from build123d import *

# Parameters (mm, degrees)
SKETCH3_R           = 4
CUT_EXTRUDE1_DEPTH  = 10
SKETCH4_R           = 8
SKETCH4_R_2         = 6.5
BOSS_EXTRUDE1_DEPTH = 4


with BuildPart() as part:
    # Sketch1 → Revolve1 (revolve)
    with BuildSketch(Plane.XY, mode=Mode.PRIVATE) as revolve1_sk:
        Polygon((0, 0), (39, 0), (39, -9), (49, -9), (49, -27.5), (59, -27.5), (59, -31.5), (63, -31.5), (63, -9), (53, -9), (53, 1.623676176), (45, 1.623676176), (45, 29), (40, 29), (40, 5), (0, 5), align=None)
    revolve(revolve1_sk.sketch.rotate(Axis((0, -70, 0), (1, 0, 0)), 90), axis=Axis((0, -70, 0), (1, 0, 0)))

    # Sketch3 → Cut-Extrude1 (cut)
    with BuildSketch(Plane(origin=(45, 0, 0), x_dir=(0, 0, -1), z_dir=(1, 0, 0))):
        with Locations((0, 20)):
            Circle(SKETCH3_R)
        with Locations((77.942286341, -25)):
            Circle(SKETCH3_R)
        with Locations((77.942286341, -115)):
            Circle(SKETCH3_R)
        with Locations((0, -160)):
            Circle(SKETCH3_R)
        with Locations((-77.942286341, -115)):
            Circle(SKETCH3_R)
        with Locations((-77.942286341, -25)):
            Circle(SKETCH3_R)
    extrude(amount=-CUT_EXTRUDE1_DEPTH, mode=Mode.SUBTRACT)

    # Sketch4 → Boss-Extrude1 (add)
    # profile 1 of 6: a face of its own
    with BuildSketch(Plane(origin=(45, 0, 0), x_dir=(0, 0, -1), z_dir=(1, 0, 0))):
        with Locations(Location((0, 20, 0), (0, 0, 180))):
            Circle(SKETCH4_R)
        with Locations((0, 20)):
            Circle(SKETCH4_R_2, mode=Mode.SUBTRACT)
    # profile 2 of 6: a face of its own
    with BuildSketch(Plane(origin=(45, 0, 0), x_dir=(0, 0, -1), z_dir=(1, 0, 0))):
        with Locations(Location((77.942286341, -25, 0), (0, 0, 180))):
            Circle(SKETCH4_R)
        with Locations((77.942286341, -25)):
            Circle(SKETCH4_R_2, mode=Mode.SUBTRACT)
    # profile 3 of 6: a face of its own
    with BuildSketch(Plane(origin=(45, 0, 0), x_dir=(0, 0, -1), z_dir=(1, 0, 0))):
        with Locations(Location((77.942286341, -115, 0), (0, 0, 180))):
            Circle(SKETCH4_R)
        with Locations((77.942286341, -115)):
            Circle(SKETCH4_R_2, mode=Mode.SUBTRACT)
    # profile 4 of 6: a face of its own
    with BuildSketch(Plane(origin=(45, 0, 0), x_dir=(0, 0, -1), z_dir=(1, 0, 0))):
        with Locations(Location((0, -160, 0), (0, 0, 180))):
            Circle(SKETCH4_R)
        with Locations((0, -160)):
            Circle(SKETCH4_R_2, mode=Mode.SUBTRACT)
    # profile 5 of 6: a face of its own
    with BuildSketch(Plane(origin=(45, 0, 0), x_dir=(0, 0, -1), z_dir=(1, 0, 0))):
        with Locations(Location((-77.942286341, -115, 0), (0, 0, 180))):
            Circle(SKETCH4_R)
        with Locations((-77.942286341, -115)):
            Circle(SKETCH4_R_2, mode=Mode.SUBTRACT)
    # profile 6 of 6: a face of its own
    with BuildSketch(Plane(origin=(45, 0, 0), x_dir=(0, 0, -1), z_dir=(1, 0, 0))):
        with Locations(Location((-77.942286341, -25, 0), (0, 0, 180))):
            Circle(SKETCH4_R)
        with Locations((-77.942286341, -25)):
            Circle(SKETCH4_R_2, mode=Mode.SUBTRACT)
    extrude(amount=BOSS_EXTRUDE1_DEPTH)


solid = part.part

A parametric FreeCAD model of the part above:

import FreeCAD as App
import Part
import Sketcher

V = App.Vector

doc = App.newDocument("Part")
params = doc.addObject("Spreadsheet::Sheet", "Params")
for row, (alias, value) in enumerate([
    ("sketch1_width", "39 mm"),
    ("sketch1_width2", "10 mm"),
    ("sketch1_width3", "4 mm"),
    ("sketch1_width4", "8 mm"),
    ("sketch1_width5", "5 mm"),
    ("revolution_angle", "360 deg"),
    ("sketch2_diameter", "8 mm"),
    ("pocket1_length", "10 mm"),
    ("sketch3_diameter", "16 mm"),
    ("sketch3_diameter2", "13 mm"),
    ("pad1_length", "4 mm"),
], start=1):
    params.set(f"A{row}", alias)
    params.set(f"B{row}", "=" + value)
    params.setAlias(f"B{row}", alias)

body = doc.addObject("PartDesign::Body", "Body")

sketch1 = doc.addObject("Sketcher::SketchObject", "Sketch")
body.addObject(sketch1)
sketch1.AttachmentSupport = (doc.XY_Plane, [""])
sketch1.MapMode = "FlatFace"
sketch1.addGeometry(Part.LineSegment(V(0, 0, 0), V(39, 0, 0)), False)
sketch1.addGeometry(Part.LineSegment(V(39, 0, 0), V(39, -9, 0)), False)
sketch1.addGeometry(Part.LineSegment(V(39, -9, 0), V(49, -9, 0)), False)
sketch1.addGeometry(Part.LineSegment(V(49, -9, 0), V(49, -27.5, 0)), False)
sketch1.addGeometry(Part.LineSegment(V(49, -27.5, 0), V(59, -27.5, 0)), False)
sketch1.addGeometry(Part.LineSegment(V(59, -27.5, 0), V(59, -31.5, 0)), False)
sketch1.addGeometry(Part.LineSegment(V(59, -31.5, 0), V(63, -31.5, 0)), False)
sketch1.addGeometry(Part.LineSegment(V(63, -31.5, 0), V(63, -9, 0)), False)
sketch1.addGeometry(Part.LineSegment(V(63, -9, 0), V(53, -9, 0)), False)
sketch1.addGeometry(Part.LineSegment(V(53, -9, 0), V(53, 1.623676, 0)), False)
sketch1.addGeometry(Part.LineSegment(V(53, 1.623676, 0), V(45, 1.623676, 0)), False)
sketch1.addGeometry(Part.LineSegment(V(45, 1.623676, 0), V(45, 29, 0)), False)
sketch1.addGeometry(Part.LineSegment(V(45, 29, 0), V(40, 29, 0)), False)
sketch1.addGeometry(Part.LineSegment(V(40, 29, 0), V(40, 5, 0)), False)
sketch1.addGeometry(Part.LineSegment(V(40, 5, 0), V(0, 5, 0)), False)
sketch1.addGeometry(Part.LineSegment(V(0, 5, 0), V(0, 0, 0)), False)
sketch1.addGeometry(Part.LineSegment(V(0, -70, 0), V(63, -70, 0)), True)
sketch1.addConstraint(Sketcher.Constraint("Coincident", 0, 2, 1, 1))
sketch1.addConstraint(Sketcher.Constraint("Coincident", 1, 2, 2, 1))
sketch1.addConstraint(Sketcher.Constraint("Coincident", 2, 2, 3, 1))
sketch1.addConstraint(Sketcher.Constraint("Coincident", 3, 2, 4, 1))
sketch1.addConstraint(Sketcher.Constraint("Coincident", 4, 2, 5, 1))
sketch1.addConstraint(Sketcher.Constraint("Coincident", 5, 2, 6, 1))
sketch1.addConstraint(Sketcher.Constraint("Coincident", 6, 2, 7, 1))
sketch1.addConstraint(Sketcher.Constraint("Coincident", 7, 2, 8, 1))
sketch1.addConstraint(Sketcher.Constraint("Coincident", 8, 2, 9, 1))
sketch1.addConstraint(Sketcher.Constraint("Coincident", 9, 2, 10, 1))
sketch1.addConstraint(Sketcher.Constraint("Coincident", 10, 2, 11, 1))
sketch1.addConstraint(Sketcher.Constraint("Coincident", 11, 2, 12, 1))
sketch1.addConstraint(Sketcher.Constraint("Coincident", 12, 2, 13, 1))
sketch1.addConstraint(Sketcher.Constraint("Coincident", 13, 2, 14, 1))
sketch1.addConstraint(Sketcher.Constraint("Coincident", 14, 2, 15, 1))
sketch1.addConstraint(Sketcher.Constraint("Coincident", 15, 2, 0, 1))
sketch1.addConstraint(Sketcher.Constraint("Horizontal", 0))
sketch1.addConstraint(Sketcher.Constraint("Vertical", 1))
sketch1.addConstraint(Sketcher.Constraint("Horizontal", 2))
sketch1.addConstraint(Sketcher.Constraint("Vertical", 3))
sketch1.addConstraint(Sketcher.Constraint("Horizontal", 4))
sketch1.addConstraint(Sketcher.Constraint("Vertical", 5))
sketch1.addConstraint(Sketcher.Constraint("Horizontal", 6))
sketch1.addConstraint(Sketcher.Constraint("Vertical", 7))
sketch1.addConstraint(Sketcher.Constraint("Horizontal", 8))
sketch1.addConstraint(Sketcher.Constraint("Vertical", 9))
sketch1.addConstraint(Sketcher.Constraint("Horizontal", 10))
sketch1.addConstraint(Sketcher.Constraint("Vertical", 11))
sketch1.addConstraint(Sketcher.Constraint("Horizontal", 12))
sketch1.addConstraint(Sketcher.Constraint("Vertical", 13))
sketch1.addConstraint(Sketcher.Constraint("Horizontal", 14))
sketch1.addConstraint(Sketcher.Constraint("Vertical", 15))
sketch1.addConstraint(Sketcher.Constraint("Horizontal", 16))
sketch1.addConstraint(Sketcher.Constraint("Coincident", 15, 2, -1, 1))
sketch1.addConstraint(Sketcher.Constraint("PointOnObject", 16, 1, -2))
sketch1.addConstraint(Sketcher.Constraint("Horizontal", 2, 2, 7, 2))
sketch1.addConstraint(Sketcher.Constraint("Vertical", 7, 2, 16, 2))
sketch1.addConstraint(Sketcher.Constraint("Equal", 2, 4))
sketch1.addConstraint(Sketcher.Constraint("Equal", 4, 8))
sketch1.addConstraint(Sketcher.Constraint("Equal", 6, 5))
sketch1.addConstraint(Sketcher.Constraint("Equal", 12, 15))
sketch1.addConstraint(Sketcher.Constraint("DistanceX", 0, 1, 0, 2, 39.0))
sketch1.addConstraint(Sketcher.Constraint("DistanceX", 2, 1, 2, 2, 10.0))
sketch1.addConstraint(Sketcher.Constraint("DistanceX", 6, 1, 6, 2, 4.0))
sketch1.addConstraint(Sketcher.Constraint("DistanceX", 10, 2, 10, 1, 8.0))
sketch1.addConstraint(Sketcher.Constraint("DistanceX", 12, 2, 12, 1, 5.0))
sketch1.addConstraint(Sketcher.Constraint("DistanceY", 1, 2, 1, 1, 9.0))
sketch1.addConstraint(Sketcher.Constraint("DistanceY", 13, 2, 13, 1, 24.0))
sketch1.addConstraint(Sketcher.Constraint("DistanceY", 3, 2, 3, 1, 18.5))
sketch1.addConstraint(Sketcher.Constraint("DistanceY", 16, 1, -1, 1, 70.0))
sketch1.addConstraint(Sketcher.Constraint("DistanceY", 9, 1, 9, 2, 10.623676))
sketch1.setExpression("Constraints[41]", "Params.sketch1_width")
sketch1.setExpression("Constraints[42]", "Params.sketch1_width2")
sketch1.setExpression("Constraints[43]", "Params.sketch1_width3")
sketch1.setExpression("Constraints[44]", "Params.sketch1_width4")
sketch1.setExpression("Constraints[45]", "Params.sketch1_width5")
revolution = doc.addObject("PartDesign::Revolution", "Revolution")
body.addObject(revolution)
revolution.Profile = sketch1
revolution.ReferenceAxis = (sketch1, ["Axis0"])
revolution.setExpression("Angle", "Params.revolution_angle")

sketch2 = doc.addObject("Sketcher::SketchObject", "Sketch001")
body.addObject(sketch2)
sketch2.AttachmentSupport = (doc.YZ_Plane, [""])
sketch2.MapMode = "FlatFace"
sketch2.AttachmentOffset = App.Placement(V(0, 0, 45), App.Rotation())
sketch2.addGeometry(Part.Circle(V(20, 0, 0), V(0, 0, 1), 4), False)
sketch2.addGeometry(Part.Circle(V(-25, -77.942286, 0), V(0, 0, 1), 4), False)
sketch2.addGeometry(Part.Circle(V(-115, -77.942286, 0), V(0, 0, 1), 4), False)
sketch2.addGeometry(Part.Circle(V(-160, 0, 0), V(0, 0, 1), 4), False)
sketch2.addGeometry(Part.Circle(V(-115, 77.942286, 0), V(0, 0, 1), 4), False)
sketch2.addGeometry(Part.Circle(V(-25, 77.942286, 0), V(0, 0, 1), 4), False)
sketch2.addConstraint(Sketcher.Constraint("Equal", 0, 1))
sketch2.addConstraint(Sketcher.Constraint("Equal", 1, 2))
sketch2.addConstraint(Sketcher.Constraint("Equal", 2, 3))
sketch2.addConstraint(Sketcher.Constraint("Equal", 3, 4))
sketch2.addConstraint(Sketcher.Constraint("Equal", 4, 5))
sketch2.addConstraint(Sketcher.Constraint("Symmetric", 2, 3, 4, 3, -1))
sketch2.addConstraint(Sketcher.Constraint("Symmetric", 1, 3, 5, 3, -1))
sketch2.addConstraint(Sketcher.Constraint("PointOnObject", 0, 3, -1))
sketch2.addConstraint(Sketcher.Constraint("PointOnObject", 3, 3, -1))
sketch2.addConstraint(Sketcher.Constraint("Horizontal", 1, 3, 2, 3))
sketch2.addConstraint(Sketcher.Constraint("Diameter", 0, 8.0))
sketch2.addConstraint(Sketcher.Constraint("DistanceX", -1, 1, 0, 3, 20.0))
sketch2.addConstraint(Sketcher.Constraint("DistanceX", 1, 3, -1, 1, 25.0))
sketch2.addConstraint(Sketcher.Constraint("DistanceX", 2, 3, -1, 1, 115.0))
sketch2.addConstraint(Sketcher.Constraint("DistanceX", 3, 3, -1, 1, 160.0))
sketch2.addConstraint(Sketcher.Constraint("DistanceY", 1, 3, -1, 1, 77.942286))
sketch2.setExpression("Constraints[10]", "Params.sketch2_diameter")
pocket1 = doc.addObject("PartDesign::Pocket", "Pocket")
body.addObject(pocket1)
pocket1.Profile = sketch2
pocket1.setExpression("Length", "Params.pocket1_length")

sketch3 = doc.addObject("Sketcher::SketchObject", "Sketch002")
body.addObject(sketch3)
sketch3.AttachmentSupport = (doc.YZ_Plane, [""])
sketch3.MapMode = "FlatFace"
sketch3.AttachmentOffset = App.Placement(V(0, 0, 45), App.Rotation())
sketch3.addGeometry(Part.Circle(V(20, 0, 0), V(0, 0, 1), 8), False)
sketch3.addGeometry(Part.Circle(V(20, 0, 0), V(0, 0, 1), 6.5), False)
sketch3.addGeometry(Part.Circle(V(-25, -77.942286, 0), V(0, 0, 1), 8), False)
sketch3.addGeometry(Part.Circle(V(-25, -77.942286, 0), V(0, 0, 1), 6.5), False)
sketch3.addGeometry(Part.Circle(V(-115, -77.942286, 0), V(0, 0, 1), 8), False)
sketch3.addGeometry(Part.Circle(V(-115, -77.942286, 0), V(0, 0, 1), 6.5), False)
sketch3.addGeometry(Part.Circle(V(-160, 0, 0), V(0, 0, 1), 8), False)
sketch3.addGeometry(Part.Circle(V(-160, 0, 0), V(0, 0, 1), 6.5), False)
sketch3.addGeometry(Part.Circle(V(-115, 77.942286, 0), V(0, 0, 1), 8), False)
sketch3.addGeometry(Part.Circle(V(-115, 77.942286, 0), V(0, 0, 1), 6.5), False)
sketch3.addGeometry(Part.Circle(V(-25, 77.942286, 0), V(0, 0, 1), 8), False)
sketch3.addGeometry(Part.Circle(V(-25, 77.942286, 0), V(0, 0, 1), 6.5), False)
sketch3.addConstraint(Sketcher.Constraint("Coincident", 1, 3, 0, 3))
sketch3.addConstraint(Sketcher.Constraint("Coincident", 3, 3, 2, 3))
sketch3.addConstraint(Sketcher.Constraint("Coincident", 5, 3, 4, 3))
sketch3.addConstraint(Sketcher.Constraint("Coincident", 7, 3, 6, 3))
sketch3.addConstraint(Sketcher.Constraint("Coincident", 9, 3, 8, 3))
sketch3.addConstraint(Sketcher.Constraint("Coincident", 11, 3, 10, 3))
sketch3.addConstraint(Sketcher.Constraint("Equal", 0, 2))
sketch3.addConstraint(Sketcher.Constraint("Equal", 1, 3))
sketch3.addConstraint(Sketcher.Constraint("Equal", 2, 4))
sketch3.addConstraint(Sketcher.Constraint("Equal", 3, 5))
sketch3.addConstraint(Sketcher.Constraint("Equal", 4, 6))
sketch3.addConstraint(Sketcher.Constraint("Equal", 5, 7))
sketch3.addConstraint(Sketcher.Constraint("Equal", 6, 8))
sketch3.addConstraint(Sketcher.Constraint("Equal", 7, 9))
sketch3.addConstraint(Sketcher.Constraint("Equal", 8, 10))
sketch3.addConstraint(Sketcher.Constraint("Equal", 9, 11))
sketch3.addConstraint(Sketcher.Constraint("Symmetric", 4, 3, 8, 3, -1))
sketch3.addConstraint(Sketcher.Constraint("Symmetric", 2, 3, 10, 3, -1))
sketch3.addConstraint(Sketcher.Constraint("PointOnObject", 0, 3, -1))
sketch3.addConstraint(Sketcher.Constraint("PointOnObject", 6, 3, -1))
sketch3.addConstraint(Sketcher.Constraint("Horizontal", 3, 3, 4, 3))
sketch3.addConstraint(Sketcher.Constraint("Diameter", 0, 16.0))
sketch3.addConstraint(Sketcher.Constraint("Diameter", 1, 13.0))
sketch3.addConstraint(Sketcher.Constraint("DistanceX", -1, 1, 0, 3, 20.0))
sketch3.addConstraint(Sketcher.Constraint("DistanceX", 2, 3, -1, 1, 25.0))
sketch3.addConstraint(Sketcher.Constraint("DistanceX", 4, 3, -1, 1, 115.0))
sketch3.addConstraint(Sketcher.Constraint("DistanceX", 6, 3, -1, 1, 160.0))
sketch3.addConstraint(Sketcher.Constraint("DistanceY", 2, 3, -1, 1, 77.942286))
sketch3.setExpression("Constraints[21]", "Params.sketch3_diameter")
sketch3.setExpression("Constraints[22]", "Params.sketch3_diameter2")
pad1 = doc.addObject("PartDesign::Pad", "Pad")
body.addObject(pad1)
pad1.Profile = sketch3
pad1.setExpression("Length", "Params.pad1_length")

doc.recompute()
